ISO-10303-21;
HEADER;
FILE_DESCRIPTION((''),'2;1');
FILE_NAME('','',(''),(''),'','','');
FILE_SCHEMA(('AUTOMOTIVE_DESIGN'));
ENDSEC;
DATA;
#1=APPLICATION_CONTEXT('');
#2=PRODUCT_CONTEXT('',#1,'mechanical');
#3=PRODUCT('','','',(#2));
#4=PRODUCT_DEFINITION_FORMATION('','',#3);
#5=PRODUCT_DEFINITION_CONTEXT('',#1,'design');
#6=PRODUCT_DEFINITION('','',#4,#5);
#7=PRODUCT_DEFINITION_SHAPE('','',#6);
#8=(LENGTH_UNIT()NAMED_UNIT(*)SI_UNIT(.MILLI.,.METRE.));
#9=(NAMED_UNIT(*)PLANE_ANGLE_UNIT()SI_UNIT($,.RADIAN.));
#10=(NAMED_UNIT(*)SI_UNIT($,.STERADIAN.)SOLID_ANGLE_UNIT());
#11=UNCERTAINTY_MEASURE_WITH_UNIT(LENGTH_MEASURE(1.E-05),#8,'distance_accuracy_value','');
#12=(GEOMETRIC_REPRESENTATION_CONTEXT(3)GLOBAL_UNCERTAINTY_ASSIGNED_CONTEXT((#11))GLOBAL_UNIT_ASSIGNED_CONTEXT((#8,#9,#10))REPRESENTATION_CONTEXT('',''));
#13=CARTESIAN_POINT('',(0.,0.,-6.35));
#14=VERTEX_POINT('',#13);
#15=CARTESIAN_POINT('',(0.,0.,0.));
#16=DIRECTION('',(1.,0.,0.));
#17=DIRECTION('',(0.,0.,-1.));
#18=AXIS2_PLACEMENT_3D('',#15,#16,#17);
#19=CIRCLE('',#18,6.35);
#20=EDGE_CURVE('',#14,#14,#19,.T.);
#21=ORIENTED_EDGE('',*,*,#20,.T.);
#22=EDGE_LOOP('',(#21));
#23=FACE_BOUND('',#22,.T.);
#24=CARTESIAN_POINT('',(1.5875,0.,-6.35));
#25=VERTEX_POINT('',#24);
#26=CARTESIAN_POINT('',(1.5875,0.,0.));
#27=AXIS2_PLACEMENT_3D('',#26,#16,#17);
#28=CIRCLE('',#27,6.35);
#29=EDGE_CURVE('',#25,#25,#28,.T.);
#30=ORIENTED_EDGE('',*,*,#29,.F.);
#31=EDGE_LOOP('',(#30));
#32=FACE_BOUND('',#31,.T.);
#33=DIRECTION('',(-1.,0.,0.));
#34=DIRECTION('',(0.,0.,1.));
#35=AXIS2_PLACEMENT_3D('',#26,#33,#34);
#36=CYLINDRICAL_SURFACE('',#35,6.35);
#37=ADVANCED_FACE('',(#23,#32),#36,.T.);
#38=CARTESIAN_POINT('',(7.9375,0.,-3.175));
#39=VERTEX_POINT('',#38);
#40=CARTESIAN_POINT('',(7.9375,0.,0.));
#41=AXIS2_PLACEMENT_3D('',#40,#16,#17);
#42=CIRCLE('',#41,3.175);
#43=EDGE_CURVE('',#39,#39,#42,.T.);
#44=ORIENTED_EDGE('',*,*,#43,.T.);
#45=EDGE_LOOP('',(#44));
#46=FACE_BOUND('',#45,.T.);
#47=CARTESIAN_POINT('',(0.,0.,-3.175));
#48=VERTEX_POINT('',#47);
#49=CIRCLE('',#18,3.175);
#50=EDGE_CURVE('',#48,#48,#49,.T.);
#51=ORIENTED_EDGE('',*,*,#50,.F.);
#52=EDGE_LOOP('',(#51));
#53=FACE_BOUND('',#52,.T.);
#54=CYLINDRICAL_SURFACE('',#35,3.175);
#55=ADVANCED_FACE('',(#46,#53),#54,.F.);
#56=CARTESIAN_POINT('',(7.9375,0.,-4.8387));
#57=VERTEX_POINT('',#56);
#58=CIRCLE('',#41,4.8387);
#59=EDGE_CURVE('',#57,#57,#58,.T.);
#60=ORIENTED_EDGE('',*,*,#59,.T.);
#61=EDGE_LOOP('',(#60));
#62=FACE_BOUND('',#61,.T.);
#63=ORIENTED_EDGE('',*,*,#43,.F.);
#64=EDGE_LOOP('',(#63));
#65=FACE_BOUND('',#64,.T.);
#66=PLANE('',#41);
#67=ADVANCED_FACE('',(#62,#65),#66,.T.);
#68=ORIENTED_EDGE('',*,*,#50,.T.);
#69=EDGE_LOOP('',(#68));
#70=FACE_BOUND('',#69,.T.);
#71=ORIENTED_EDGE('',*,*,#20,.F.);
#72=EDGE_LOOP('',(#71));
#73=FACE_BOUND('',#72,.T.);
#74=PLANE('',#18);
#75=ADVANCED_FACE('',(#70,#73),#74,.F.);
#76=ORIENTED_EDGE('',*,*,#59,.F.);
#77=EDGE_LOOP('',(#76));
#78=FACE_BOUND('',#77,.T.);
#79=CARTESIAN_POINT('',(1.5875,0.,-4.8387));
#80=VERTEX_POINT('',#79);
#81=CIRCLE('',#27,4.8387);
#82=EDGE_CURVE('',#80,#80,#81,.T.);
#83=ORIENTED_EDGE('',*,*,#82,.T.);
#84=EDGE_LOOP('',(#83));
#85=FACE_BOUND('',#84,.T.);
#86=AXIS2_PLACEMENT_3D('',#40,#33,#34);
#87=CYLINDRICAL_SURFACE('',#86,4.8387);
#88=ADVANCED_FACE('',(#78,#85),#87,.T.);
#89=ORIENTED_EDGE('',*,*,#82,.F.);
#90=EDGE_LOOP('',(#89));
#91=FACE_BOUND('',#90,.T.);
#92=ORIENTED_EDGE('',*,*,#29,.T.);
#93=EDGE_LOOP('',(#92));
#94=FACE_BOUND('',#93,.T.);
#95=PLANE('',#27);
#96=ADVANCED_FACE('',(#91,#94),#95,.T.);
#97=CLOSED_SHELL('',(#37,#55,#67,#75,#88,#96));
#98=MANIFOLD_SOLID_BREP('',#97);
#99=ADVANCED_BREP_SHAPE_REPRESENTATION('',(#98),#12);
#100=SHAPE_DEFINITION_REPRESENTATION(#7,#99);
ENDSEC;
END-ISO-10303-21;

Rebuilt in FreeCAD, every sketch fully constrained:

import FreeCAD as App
import Part
import Sketcher
Q = App.Units.Quantity

doc = App.newDocument("Part")
params = doc.addObject("Spreadsheet::Sheet", "Params")
for row, (alias, value) in enumerate([
    ("sketch1_diameter", "0.5 in"),
    ("sketch1_diameter2", "0.25 in"),
    ("pad1_length", "0.0625 in"),
    ("sketch2_diameter", "0.25 in"),
    ("sketch2_diameter2", "0.381 in"),
    ("pad2_length", "0.25 in"),
], start=1):
    params.set(f"A{row}", alias)
    params.set(f"B{row}", "=" + value)
    params.setAlias(f"B{row}", alias)

body = doc.addObject("PartDesign::Body", "Body")

# Sketch on YZ plane
sketch1 = body.newObject("Sketcher::SketchObject", "Sketch")
sketch1.AttachmentSupport = (doc.getObject("YZ_Plane"), [""])
sketch1.MapMode = "FlatFace"
sketch1.addGeometry(Part.Circle(App.Vector(0, 0, 0), App.Vector(0, 0, 1), 6.3), False)
sketch1.addGeometry(Part.Circle(App.Vector(0, 0, 0), App.Vector(0, 0, 1), 3.2), False)
sketch1.addConstraint(Sketcher.Constraint("Coincident", 0, 3, -1, 1))
sketch1.addConstraint(Sketcher.Constraint("Coincident", 1, 3, -1, 1))
sketch1.addConstraint(Sketcher.Constraint("Diameter", 0, Q("0.5 in")))
sketch1.addConstraint(Sketcher.Constraint("Diameter", 1, Q("0.25 in")))
sketch1.setExpression("Constraints[2]", "Params.sketch1_diameter")
sketch1.setExpression("Constraints[3]", "Params.sketch1_diameter2")
pad1 = body.newObject("PartDesign::Pad", "Pad")
pad1.Profile = sketch1
pad1.setExpression("Length", "Params.pad1_length")

# Sketch on YZ plane
sketch2 = body.newObject("Sketcher::SketchObject", "Sketch001")
sketch2.AttachmentSupport = (doc.getObject("YZ_Plane"), [""])
sketch2.MapMode = "FlatFace"
sketch2.AttachmentOffset = App.Placement(App.Vector(0, 0, 0.0625 * 25.4), App.Rotation())
sketch2.addGeometry(Part.Circle(App.Vector(0, 0, 0), App.Vector(0, 0, 1), 4.8), False)
sketch2.addGeometry(Part.Circle(App.Vector(0, 0, 0), App.Vector(0, 0, 1), 3.2), False)
sketch2.addConstraint(Sketcher.Constraint("Coincident", 0, 3, -1, 1))
sketch2.addConstraint(Sketcher.Constraint("Coincident", 1, 3, -1, 1))
sketch2.addConstraint(Sketcher.Constraint("Diameter", 1, Q("0.25 in")))
sketch2.addConstraint(Sketcher.Constraint("Diameter", 0, Q("0.381 in")))
sketch2.setExpression("Constraints[2]", "Params.sketch2_diameter")
sketch2.setExpression("Constraints[3]", "Params.sketch2_diameter2")
pad2 = body.newObject("PartDesign::Pad", "Pad001")
pad2.Profile = sketch2
pad2.setExpression("Length", "Params.pad2_length")

doc.recompute()
